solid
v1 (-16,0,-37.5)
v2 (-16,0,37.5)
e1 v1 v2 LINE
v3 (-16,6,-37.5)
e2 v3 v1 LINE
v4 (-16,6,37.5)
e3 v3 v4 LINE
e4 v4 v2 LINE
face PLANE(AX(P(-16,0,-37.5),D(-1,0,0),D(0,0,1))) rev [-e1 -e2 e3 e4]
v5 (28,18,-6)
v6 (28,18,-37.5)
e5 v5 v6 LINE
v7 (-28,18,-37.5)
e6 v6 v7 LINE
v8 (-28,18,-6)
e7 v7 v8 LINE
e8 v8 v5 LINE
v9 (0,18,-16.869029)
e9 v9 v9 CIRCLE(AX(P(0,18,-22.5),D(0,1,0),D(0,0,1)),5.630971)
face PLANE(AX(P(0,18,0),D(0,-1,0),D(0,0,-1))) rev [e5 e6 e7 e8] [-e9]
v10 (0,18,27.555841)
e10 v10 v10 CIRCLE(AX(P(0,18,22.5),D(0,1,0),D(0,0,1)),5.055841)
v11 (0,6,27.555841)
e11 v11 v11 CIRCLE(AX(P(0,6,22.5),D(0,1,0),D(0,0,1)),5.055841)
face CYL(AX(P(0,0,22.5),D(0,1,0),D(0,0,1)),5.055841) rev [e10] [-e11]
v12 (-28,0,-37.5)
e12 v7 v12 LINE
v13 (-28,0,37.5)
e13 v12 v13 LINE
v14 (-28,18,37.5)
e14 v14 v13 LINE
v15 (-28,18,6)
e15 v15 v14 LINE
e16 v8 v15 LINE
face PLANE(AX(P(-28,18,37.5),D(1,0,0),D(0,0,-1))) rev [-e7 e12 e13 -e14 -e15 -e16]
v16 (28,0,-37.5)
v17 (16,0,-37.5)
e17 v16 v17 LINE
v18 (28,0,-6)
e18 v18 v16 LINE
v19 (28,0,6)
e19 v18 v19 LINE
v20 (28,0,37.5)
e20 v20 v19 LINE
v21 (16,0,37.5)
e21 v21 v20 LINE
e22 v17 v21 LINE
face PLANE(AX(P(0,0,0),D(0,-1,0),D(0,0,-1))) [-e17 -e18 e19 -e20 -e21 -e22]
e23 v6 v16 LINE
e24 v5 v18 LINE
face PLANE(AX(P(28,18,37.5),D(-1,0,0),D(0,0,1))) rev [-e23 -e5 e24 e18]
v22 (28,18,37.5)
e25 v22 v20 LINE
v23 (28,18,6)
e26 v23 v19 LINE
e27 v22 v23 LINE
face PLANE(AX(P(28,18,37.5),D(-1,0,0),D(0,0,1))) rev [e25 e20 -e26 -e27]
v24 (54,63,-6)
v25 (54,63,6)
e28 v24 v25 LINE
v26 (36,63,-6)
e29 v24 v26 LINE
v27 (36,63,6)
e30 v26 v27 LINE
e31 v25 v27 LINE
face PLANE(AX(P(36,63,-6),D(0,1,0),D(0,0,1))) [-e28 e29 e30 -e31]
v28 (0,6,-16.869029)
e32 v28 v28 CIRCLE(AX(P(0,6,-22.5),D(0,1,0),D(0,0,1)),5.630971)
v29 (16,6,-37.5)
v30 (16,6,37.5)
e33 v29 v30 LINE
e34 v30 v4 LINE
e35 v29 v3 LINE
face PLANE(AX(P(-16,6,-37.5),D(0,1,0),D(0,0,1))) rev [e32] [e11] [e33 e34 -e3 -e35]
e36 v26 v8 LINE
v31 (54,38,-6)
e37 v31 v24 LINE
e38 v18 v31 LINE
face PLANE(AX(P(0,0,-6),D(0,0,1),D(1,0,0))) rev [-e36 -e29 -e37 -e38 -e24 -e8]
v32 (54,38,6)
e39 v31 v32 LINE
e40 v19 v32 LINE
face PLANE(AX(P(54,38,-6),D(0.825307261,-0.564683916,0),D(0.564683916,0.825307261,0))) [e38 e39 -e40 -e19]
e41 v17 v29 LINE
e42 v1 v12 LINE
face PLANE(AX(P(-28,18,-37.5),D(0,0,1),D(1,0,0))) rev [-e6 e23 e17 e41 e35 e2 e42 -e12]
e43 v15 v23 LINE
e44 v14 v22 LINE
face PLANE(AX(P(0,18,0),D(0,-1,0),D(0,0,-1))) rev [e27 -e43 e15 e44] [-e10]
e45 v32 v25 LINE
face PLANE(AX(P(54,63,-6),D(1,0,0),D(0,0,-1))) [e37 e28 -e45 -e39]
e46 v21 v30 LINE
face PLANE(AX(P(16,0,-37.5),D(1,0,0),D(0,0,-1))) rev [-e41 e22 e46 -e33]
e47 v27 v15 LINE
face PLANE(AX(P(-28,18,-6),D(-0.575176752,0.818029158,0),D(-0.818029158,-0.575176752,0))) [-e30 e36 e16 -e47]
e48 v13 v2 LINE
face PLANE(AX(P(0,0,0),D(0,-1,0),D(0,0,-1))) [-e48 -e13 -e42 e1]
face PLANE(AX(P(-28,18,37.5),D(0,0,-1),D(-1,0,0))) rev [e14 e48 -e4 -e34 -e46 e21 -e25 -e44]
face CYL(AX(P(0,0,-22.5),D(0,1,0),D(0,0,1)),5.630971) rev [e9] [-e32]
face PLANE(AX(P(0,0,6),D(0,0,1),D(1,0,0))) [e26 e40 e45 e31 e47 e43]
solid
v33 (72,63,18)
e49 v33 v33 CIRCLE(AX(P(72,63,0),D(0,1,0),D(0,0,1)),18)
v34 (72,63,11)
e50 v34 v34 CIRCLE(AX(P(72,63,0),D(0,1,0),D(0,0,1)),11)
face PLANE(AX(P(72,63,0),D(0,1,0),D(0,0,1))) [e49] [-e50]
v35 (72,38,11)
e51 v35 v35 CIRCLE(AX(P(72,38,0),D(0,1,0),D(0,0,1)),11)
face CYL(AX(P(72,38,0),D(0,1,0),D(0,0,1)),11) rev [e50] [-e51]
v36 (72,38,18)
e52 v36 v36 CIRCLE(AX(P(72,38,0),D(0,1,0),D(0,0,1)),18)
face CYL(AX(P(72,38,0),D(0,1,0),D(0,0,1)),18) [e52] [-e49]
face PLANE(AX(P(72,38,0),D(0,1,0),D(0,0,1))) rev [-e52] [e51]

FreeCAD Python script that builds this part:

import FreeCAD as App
import Part
import Sketcher

V = App.Vector

doc = App.newDocument("Part")
body = doc.addObject("PartDesign::Body", "Body")

# Sketch on XZ plane
sketch1 = body.newObject("Sketcher::SketchObject", "Sketch")
sketch1.AttachmentSupport = (doc.getObject("XZ_Plane"), [""])
sketch1.MapMode = "FlatFace"
sketch1.addGeometry(Part.LineSegment(V(-28, -37.5, 0), V(-28, 37.5, 0)), False)
sketch1.addGeometry(Part.LineSegment(V(-28, 37.5, 0), V(28, 37.5, 0)), False)
sketch1.addGeometry(Part.LineSegment(V(28, 37.5, 0), V(28, -37.5, 0)), False)
sketch1.addGeometry(Part.LineSegment(V(28, -37.5, 0), V(-28, -37.5, 0)), False)
sketch1.addConstraint(Sketcher.Constraint("Coincident", 0, 2, 1, 1))
sketch1.addConstraint(Sketcher.Constraint("Coincident", 1, 2, 2, 1))
sketch1.addConstraint(Sketcher.Constraint("Coincident", 2, 2, 3, 1))
sketch1.addConstraint(Sketcher.Constraint("Coincident", 3, 2, 0, 1))
sketch1.addConstraint(Sketcher.Constraint("Vertical", 0))
sketch1.addConstraint(Sketcher.Constraint("Horizontal", 1))
sketch1.addConstraint(Sketcher.Constraint("Vertical", 2))
sketch1.addConstraint(Sketcher.Constraint("Horizontal", 3))
sketch1.addConstraint(Sketcher.Constraint("Symmetric", 0, 2, 2, 2, -1, 1))
sketch1.addConstraint(Sketcher.Constraint("DistanceX", 1, 1, 1, 2, 56.0))
sketch1.addConstraint(Sketcher.Constraint("DistanceY", 0, 1, 0, 2, 75.0))
pad1 = body.newObject("PartDesign::Pad", "Pad")
pad1.Profile = sketch1
pad1.Length = 18
pad1.Reversed = True

# Sketch on XY plane
sketch2 = body.newObject("Sketcher::SketchObject", "Sketch001")
sketch2.AttachmentSupport = (doc.getObject("XY_Plane"), [""])
sketch2.MapMode = "FlatFace"
sketch2.AttachmentOffset = App.Placement(V(0, 0, 37.5), App.Rotation())
sketch2.addGeometry(Part.LineSegment(V(-16, 6, 0), V(-16, 0, 0)), False)
sketch2.addGeometry(Part.LineSegment(V(-16, 0, 0), V(16, 0, 0)), False)
sketch2.addGeometry(Part.LineSegment(V(16, 0, 0), V(16, 6, 0)), False)
sketch2.addGeometry(Part.LineSegment(V(16, 6, 0), V(-16, 6, 0)), False)
sketch2.addConstraint(Sketcher.Constraint("Coincident", 0, 2, 1, 1))
sketch2.addConstraint(Sketcher.Constraint("Coincident", 1, 2, 2, 1))
sketch2.addConstraint(Sketcher.Constraint("Coincident", 2, 2, 3, 1))
sketch2.addConstraint(Sketcher.Constraint("Coincident", 3, 2, 0, 1))
sketch2.addConstraint(Sketcher.Constraint("Vertical", 0))
sketch2.addConstraint(Sketcher.Constraint("Horizontal", 1))
sketch2.addConstraint(Sketcher.Constraint("Vertical", 2))
sketch2.addConstraint(Sketcher.Constraint("Horizontal", 3))
sketch2.addConstraint(Sketcher.Constraint("Symmetric", 0, 2, 1, 2, -1, 1))
sketch2.addConstraint(Sketcher.Constraint("DistanceX", 1, 1, 1, 2, 32.0))
sketch2.addConstraint(Sketcher.Constraint("DistanceY", 0, 2, 0, 1, 6.0))
pocket1 = body.newObject("PartDesign::Pocket", "Pocket")
pocket1.Profile = sketch2
pocket1.Type = "ThroughAll"

# Sketch on XZ plane
sketch3 = body.newObject("Sketcher::SketchObject", "Sketch002")
sketch3.AttachmentSupport = (doc.getObject("XZ_Plane"), [""])
sketch3.MapMode = "FlatFace"
sketch3.AttachmentOffset = App.Placement(V(0, 0, -18), App.Rotation())
sketch3.addGeometry(Part.Circle(V(0, 22.5, 0), V(0, 0, 1), 5.055841), False)
sketch3.addGeometry(Part.Circle(V(0, -22.5, 0), V(0, 0, 1), 5.630971), False)
sketch3.addConstraint(Sketcher.Constraint("Symmetric", 0, 3, 1, 3, -1, 1))
sketch3.addConstraint(Sketcher.Constraint("PointOnObject", 0, 3, -2))
sketch3.addConstraint(Sketcher.Constraint("DistanceY", 1, 3, 0, 3, 45.0))
sketch3.addConstraint(Sketcher.Constraint("Diameter", 0, 10.111683))
sketch3.addConstraint(Sketcher.Constraint("Diameter", 1, 11.261943))
pocket2 = body.newObject("PartDesign::Pocket", "Pocket001")
pocket2.Profile = sketch3
pocket2.Type = "ThroughAll"
pocket2.Reversed = True

# Sketch on XY plane
sketch4 = body.newObject("Sketcher::SketchObject", "Sketch003")
sketch4.AttachmentSupport = (doc.getObject("XY_Plane"), [""])
sketch4.MapMode = "FlatFace"
sketch4.AttachmentOffset = App.Placement(V(0, 0, 6), App.Rotation())
sketch4.addGeometry(Part.LineSegment(V(36, 63, 0), V(-28, 18, 0)), False)
sketch4.addGeometry(Part.LineSegment(V(-28, 18, 0), V(36, 18, 0)), False)
sketch4.addGeometry(Part.LineSegment(V(36, 18, 0), V(36, 63, 0)), False)
sketch4.addConstraint(Sketcher.Constraint("Coincident", 0, 2, 1, 1))
sketch4.addConstraint(Sketcher.Constraint("Coincident", 1, 2, 2, 1))
sketch4.addConstraint(Sketcher.Constraint("Coincident", 2, 2, 0, 1))
sketch4.addConstraint(Sketcher.Constraint("Horizontal", 1))
sketch4.addConstraint(Sketcher.Constraint("Vertical", 2))
sketch4.addConstraint(Sketcher.Constraint("DistanceX", 1, 1, 1, 2, 64.0))
sketch4.addConstraint(Sketcher.Constraint("DistanceY", 2, 1, 2, 2, 45.0))
sketch4.addConstraint(Sketcher.Constraint("DistanceX", 0, 2, -1, 1, 28.0))
sketch4.addConstraint(Sketcher.Constraint("DistanceY", -1, 1, 0, 2, 18.0))
pad2 = body.newObject("PartDesign::Pad", "Pad001")
pad2.Profile = sketch4
pad2.Length = 12
pad2.Reversed = True

# Sketch on XY plane
sketch5 = body.newObject("Sketcher::SketchObject", "Sketch004")
sketch5.AttachmentSupport = (doc.getObject("XY_Plane"), [""])
sketch5.MapMode = "FlatFace"
sketch5.AttachmentOffset = App.Placement(V(0, 0, 6), App.Rotation())
sketch5.addGeometry(Part.LineSegment(V(54, 63, 0), V(36, 63, 0)), False)
sketch5.addGeometry(Part.LineSegment(V(36, 63, 0), V(36, 18, 0)), False)
sketch5.addGeometry(Part.LineSegment(V(36, 18, 0), V(28, 18, 0)), False)
sketch5.addGeometry(Part.LineSegment(V(28, 18, 0), V(28, 0, 0)), False)
sketch5.addGeometry(Part.LineSegment(V(28, 0, 0), V(54, 38, 0)), False)
sketch5.addGeometry(Part.LineSegment(V(54, 38, 0), V(54, 63, 0)), False)
sketch5.addConstraint(Sketcher.Constraint("Coincident", 0, 2, 1, 1))
sketch5.addConstraint(Sketcher.Constraint("Coincident", 1, 2, 2, 1))
sketch5.addConstraint(Sketcher.Constraint("Coincident", 2, 2, 3, 1))
sketch5.addConstraint(Sketcher.Constraint("Coincident", 3, 2, 4, 1))
sketch5.addConstraint(Sketcher.Constraint("Coincident", 4, 2, 5, 1))
sketch5.addConstraint(Sketcher.Constraint("Coincident", 5, 2, 0, 1))
sketch5.addConstraint(Sketcher.Constraint("Horizontal", 0))
sketch5.addConstraint(Sketcher.Constraint("Vertical", 1))
sketch5.addConstraint(Sketcher.Constraint("Horizontal", 2))
sketch5.addConstraint(Sketcher.Constraint("Vertical", 3))
sketch5.addConstraint(Sketcher.Constraint("Vertical", 5))
sketch5.addConstraint(Sketcher.Constraint("PointOnObject", 3, 2, -1))
sketch5.addConstraint(Sketcher.Constraint("Equal", 0, 3))
sketch5.addConstraint(Sketcher.Constraint("DistanceX", 0, 2, 0, 1, 18.0))
sketch5.addConstraint(Sketcher.Constraint("DistanceX", 2, 2, 2, 1, 8.0))
sketch5.addConstraint(Sketcher.Constraint("DistanceY", 1, 2, 1, 1, 45.0))
sketch5.addConstraint(Sketcher.Constraint("DistanceY", 5, 1, 5, 2, 25.0))
sketch5.addConstraint(Sketcher.Constraint("DistanceX", -1, 1, 0, 2, 36.0))
pad3 = body.newObject("PartDesign::Pad", "Pad002")
pad3.Profile = sketch5
pad3.Length = 12
pad3.Reversed = True
body2 = doc.addObject("PartDesign::Body", "Body001")

# Sketch on XZ plane
sketch6 = body2.newObject("Sketcher::SketchObject", "Sketch005")
sketch6.AttachmentSupport = (doc.getObject("XZ_Plane001"), [""])
sketch6.MapMode = "FlatFace"
sketch6.AttachmentOffset = App.Placement(V(0, 0, -63), App.Rotation())
sketch6.addGeometry(Part.Circle(V(72, 0, 0), V(0, 0, 1), 18), False)
sketch6.addGeometry(Part.Circle(V(72, 0, 0), V(0, 0, 1), 11), False)
sketch6.addConstraint(Sketcher.Constraint("Coincident", 1, 3, 0, 3))
sketch6.addConstraint(Sketcher.Constraint("PointOnObject", 0, 3, -1))
sketch6.addConstraint(Sketcher.Constraint("Diameter", 0, 36.0))
sketch6.addConstraint(Sketcher.Constraint("Diameter", 1, 22.0))
sketch6.addConstraint(Sketcher.Constraint("DistanceX", -1, 1, 0, 3, 72.0))
pad4 = body2.newObject("PartDesign::Pad", "Pad003")
pad4.Profile = sketch6
pad4.Length = 25

doc.recompute()
